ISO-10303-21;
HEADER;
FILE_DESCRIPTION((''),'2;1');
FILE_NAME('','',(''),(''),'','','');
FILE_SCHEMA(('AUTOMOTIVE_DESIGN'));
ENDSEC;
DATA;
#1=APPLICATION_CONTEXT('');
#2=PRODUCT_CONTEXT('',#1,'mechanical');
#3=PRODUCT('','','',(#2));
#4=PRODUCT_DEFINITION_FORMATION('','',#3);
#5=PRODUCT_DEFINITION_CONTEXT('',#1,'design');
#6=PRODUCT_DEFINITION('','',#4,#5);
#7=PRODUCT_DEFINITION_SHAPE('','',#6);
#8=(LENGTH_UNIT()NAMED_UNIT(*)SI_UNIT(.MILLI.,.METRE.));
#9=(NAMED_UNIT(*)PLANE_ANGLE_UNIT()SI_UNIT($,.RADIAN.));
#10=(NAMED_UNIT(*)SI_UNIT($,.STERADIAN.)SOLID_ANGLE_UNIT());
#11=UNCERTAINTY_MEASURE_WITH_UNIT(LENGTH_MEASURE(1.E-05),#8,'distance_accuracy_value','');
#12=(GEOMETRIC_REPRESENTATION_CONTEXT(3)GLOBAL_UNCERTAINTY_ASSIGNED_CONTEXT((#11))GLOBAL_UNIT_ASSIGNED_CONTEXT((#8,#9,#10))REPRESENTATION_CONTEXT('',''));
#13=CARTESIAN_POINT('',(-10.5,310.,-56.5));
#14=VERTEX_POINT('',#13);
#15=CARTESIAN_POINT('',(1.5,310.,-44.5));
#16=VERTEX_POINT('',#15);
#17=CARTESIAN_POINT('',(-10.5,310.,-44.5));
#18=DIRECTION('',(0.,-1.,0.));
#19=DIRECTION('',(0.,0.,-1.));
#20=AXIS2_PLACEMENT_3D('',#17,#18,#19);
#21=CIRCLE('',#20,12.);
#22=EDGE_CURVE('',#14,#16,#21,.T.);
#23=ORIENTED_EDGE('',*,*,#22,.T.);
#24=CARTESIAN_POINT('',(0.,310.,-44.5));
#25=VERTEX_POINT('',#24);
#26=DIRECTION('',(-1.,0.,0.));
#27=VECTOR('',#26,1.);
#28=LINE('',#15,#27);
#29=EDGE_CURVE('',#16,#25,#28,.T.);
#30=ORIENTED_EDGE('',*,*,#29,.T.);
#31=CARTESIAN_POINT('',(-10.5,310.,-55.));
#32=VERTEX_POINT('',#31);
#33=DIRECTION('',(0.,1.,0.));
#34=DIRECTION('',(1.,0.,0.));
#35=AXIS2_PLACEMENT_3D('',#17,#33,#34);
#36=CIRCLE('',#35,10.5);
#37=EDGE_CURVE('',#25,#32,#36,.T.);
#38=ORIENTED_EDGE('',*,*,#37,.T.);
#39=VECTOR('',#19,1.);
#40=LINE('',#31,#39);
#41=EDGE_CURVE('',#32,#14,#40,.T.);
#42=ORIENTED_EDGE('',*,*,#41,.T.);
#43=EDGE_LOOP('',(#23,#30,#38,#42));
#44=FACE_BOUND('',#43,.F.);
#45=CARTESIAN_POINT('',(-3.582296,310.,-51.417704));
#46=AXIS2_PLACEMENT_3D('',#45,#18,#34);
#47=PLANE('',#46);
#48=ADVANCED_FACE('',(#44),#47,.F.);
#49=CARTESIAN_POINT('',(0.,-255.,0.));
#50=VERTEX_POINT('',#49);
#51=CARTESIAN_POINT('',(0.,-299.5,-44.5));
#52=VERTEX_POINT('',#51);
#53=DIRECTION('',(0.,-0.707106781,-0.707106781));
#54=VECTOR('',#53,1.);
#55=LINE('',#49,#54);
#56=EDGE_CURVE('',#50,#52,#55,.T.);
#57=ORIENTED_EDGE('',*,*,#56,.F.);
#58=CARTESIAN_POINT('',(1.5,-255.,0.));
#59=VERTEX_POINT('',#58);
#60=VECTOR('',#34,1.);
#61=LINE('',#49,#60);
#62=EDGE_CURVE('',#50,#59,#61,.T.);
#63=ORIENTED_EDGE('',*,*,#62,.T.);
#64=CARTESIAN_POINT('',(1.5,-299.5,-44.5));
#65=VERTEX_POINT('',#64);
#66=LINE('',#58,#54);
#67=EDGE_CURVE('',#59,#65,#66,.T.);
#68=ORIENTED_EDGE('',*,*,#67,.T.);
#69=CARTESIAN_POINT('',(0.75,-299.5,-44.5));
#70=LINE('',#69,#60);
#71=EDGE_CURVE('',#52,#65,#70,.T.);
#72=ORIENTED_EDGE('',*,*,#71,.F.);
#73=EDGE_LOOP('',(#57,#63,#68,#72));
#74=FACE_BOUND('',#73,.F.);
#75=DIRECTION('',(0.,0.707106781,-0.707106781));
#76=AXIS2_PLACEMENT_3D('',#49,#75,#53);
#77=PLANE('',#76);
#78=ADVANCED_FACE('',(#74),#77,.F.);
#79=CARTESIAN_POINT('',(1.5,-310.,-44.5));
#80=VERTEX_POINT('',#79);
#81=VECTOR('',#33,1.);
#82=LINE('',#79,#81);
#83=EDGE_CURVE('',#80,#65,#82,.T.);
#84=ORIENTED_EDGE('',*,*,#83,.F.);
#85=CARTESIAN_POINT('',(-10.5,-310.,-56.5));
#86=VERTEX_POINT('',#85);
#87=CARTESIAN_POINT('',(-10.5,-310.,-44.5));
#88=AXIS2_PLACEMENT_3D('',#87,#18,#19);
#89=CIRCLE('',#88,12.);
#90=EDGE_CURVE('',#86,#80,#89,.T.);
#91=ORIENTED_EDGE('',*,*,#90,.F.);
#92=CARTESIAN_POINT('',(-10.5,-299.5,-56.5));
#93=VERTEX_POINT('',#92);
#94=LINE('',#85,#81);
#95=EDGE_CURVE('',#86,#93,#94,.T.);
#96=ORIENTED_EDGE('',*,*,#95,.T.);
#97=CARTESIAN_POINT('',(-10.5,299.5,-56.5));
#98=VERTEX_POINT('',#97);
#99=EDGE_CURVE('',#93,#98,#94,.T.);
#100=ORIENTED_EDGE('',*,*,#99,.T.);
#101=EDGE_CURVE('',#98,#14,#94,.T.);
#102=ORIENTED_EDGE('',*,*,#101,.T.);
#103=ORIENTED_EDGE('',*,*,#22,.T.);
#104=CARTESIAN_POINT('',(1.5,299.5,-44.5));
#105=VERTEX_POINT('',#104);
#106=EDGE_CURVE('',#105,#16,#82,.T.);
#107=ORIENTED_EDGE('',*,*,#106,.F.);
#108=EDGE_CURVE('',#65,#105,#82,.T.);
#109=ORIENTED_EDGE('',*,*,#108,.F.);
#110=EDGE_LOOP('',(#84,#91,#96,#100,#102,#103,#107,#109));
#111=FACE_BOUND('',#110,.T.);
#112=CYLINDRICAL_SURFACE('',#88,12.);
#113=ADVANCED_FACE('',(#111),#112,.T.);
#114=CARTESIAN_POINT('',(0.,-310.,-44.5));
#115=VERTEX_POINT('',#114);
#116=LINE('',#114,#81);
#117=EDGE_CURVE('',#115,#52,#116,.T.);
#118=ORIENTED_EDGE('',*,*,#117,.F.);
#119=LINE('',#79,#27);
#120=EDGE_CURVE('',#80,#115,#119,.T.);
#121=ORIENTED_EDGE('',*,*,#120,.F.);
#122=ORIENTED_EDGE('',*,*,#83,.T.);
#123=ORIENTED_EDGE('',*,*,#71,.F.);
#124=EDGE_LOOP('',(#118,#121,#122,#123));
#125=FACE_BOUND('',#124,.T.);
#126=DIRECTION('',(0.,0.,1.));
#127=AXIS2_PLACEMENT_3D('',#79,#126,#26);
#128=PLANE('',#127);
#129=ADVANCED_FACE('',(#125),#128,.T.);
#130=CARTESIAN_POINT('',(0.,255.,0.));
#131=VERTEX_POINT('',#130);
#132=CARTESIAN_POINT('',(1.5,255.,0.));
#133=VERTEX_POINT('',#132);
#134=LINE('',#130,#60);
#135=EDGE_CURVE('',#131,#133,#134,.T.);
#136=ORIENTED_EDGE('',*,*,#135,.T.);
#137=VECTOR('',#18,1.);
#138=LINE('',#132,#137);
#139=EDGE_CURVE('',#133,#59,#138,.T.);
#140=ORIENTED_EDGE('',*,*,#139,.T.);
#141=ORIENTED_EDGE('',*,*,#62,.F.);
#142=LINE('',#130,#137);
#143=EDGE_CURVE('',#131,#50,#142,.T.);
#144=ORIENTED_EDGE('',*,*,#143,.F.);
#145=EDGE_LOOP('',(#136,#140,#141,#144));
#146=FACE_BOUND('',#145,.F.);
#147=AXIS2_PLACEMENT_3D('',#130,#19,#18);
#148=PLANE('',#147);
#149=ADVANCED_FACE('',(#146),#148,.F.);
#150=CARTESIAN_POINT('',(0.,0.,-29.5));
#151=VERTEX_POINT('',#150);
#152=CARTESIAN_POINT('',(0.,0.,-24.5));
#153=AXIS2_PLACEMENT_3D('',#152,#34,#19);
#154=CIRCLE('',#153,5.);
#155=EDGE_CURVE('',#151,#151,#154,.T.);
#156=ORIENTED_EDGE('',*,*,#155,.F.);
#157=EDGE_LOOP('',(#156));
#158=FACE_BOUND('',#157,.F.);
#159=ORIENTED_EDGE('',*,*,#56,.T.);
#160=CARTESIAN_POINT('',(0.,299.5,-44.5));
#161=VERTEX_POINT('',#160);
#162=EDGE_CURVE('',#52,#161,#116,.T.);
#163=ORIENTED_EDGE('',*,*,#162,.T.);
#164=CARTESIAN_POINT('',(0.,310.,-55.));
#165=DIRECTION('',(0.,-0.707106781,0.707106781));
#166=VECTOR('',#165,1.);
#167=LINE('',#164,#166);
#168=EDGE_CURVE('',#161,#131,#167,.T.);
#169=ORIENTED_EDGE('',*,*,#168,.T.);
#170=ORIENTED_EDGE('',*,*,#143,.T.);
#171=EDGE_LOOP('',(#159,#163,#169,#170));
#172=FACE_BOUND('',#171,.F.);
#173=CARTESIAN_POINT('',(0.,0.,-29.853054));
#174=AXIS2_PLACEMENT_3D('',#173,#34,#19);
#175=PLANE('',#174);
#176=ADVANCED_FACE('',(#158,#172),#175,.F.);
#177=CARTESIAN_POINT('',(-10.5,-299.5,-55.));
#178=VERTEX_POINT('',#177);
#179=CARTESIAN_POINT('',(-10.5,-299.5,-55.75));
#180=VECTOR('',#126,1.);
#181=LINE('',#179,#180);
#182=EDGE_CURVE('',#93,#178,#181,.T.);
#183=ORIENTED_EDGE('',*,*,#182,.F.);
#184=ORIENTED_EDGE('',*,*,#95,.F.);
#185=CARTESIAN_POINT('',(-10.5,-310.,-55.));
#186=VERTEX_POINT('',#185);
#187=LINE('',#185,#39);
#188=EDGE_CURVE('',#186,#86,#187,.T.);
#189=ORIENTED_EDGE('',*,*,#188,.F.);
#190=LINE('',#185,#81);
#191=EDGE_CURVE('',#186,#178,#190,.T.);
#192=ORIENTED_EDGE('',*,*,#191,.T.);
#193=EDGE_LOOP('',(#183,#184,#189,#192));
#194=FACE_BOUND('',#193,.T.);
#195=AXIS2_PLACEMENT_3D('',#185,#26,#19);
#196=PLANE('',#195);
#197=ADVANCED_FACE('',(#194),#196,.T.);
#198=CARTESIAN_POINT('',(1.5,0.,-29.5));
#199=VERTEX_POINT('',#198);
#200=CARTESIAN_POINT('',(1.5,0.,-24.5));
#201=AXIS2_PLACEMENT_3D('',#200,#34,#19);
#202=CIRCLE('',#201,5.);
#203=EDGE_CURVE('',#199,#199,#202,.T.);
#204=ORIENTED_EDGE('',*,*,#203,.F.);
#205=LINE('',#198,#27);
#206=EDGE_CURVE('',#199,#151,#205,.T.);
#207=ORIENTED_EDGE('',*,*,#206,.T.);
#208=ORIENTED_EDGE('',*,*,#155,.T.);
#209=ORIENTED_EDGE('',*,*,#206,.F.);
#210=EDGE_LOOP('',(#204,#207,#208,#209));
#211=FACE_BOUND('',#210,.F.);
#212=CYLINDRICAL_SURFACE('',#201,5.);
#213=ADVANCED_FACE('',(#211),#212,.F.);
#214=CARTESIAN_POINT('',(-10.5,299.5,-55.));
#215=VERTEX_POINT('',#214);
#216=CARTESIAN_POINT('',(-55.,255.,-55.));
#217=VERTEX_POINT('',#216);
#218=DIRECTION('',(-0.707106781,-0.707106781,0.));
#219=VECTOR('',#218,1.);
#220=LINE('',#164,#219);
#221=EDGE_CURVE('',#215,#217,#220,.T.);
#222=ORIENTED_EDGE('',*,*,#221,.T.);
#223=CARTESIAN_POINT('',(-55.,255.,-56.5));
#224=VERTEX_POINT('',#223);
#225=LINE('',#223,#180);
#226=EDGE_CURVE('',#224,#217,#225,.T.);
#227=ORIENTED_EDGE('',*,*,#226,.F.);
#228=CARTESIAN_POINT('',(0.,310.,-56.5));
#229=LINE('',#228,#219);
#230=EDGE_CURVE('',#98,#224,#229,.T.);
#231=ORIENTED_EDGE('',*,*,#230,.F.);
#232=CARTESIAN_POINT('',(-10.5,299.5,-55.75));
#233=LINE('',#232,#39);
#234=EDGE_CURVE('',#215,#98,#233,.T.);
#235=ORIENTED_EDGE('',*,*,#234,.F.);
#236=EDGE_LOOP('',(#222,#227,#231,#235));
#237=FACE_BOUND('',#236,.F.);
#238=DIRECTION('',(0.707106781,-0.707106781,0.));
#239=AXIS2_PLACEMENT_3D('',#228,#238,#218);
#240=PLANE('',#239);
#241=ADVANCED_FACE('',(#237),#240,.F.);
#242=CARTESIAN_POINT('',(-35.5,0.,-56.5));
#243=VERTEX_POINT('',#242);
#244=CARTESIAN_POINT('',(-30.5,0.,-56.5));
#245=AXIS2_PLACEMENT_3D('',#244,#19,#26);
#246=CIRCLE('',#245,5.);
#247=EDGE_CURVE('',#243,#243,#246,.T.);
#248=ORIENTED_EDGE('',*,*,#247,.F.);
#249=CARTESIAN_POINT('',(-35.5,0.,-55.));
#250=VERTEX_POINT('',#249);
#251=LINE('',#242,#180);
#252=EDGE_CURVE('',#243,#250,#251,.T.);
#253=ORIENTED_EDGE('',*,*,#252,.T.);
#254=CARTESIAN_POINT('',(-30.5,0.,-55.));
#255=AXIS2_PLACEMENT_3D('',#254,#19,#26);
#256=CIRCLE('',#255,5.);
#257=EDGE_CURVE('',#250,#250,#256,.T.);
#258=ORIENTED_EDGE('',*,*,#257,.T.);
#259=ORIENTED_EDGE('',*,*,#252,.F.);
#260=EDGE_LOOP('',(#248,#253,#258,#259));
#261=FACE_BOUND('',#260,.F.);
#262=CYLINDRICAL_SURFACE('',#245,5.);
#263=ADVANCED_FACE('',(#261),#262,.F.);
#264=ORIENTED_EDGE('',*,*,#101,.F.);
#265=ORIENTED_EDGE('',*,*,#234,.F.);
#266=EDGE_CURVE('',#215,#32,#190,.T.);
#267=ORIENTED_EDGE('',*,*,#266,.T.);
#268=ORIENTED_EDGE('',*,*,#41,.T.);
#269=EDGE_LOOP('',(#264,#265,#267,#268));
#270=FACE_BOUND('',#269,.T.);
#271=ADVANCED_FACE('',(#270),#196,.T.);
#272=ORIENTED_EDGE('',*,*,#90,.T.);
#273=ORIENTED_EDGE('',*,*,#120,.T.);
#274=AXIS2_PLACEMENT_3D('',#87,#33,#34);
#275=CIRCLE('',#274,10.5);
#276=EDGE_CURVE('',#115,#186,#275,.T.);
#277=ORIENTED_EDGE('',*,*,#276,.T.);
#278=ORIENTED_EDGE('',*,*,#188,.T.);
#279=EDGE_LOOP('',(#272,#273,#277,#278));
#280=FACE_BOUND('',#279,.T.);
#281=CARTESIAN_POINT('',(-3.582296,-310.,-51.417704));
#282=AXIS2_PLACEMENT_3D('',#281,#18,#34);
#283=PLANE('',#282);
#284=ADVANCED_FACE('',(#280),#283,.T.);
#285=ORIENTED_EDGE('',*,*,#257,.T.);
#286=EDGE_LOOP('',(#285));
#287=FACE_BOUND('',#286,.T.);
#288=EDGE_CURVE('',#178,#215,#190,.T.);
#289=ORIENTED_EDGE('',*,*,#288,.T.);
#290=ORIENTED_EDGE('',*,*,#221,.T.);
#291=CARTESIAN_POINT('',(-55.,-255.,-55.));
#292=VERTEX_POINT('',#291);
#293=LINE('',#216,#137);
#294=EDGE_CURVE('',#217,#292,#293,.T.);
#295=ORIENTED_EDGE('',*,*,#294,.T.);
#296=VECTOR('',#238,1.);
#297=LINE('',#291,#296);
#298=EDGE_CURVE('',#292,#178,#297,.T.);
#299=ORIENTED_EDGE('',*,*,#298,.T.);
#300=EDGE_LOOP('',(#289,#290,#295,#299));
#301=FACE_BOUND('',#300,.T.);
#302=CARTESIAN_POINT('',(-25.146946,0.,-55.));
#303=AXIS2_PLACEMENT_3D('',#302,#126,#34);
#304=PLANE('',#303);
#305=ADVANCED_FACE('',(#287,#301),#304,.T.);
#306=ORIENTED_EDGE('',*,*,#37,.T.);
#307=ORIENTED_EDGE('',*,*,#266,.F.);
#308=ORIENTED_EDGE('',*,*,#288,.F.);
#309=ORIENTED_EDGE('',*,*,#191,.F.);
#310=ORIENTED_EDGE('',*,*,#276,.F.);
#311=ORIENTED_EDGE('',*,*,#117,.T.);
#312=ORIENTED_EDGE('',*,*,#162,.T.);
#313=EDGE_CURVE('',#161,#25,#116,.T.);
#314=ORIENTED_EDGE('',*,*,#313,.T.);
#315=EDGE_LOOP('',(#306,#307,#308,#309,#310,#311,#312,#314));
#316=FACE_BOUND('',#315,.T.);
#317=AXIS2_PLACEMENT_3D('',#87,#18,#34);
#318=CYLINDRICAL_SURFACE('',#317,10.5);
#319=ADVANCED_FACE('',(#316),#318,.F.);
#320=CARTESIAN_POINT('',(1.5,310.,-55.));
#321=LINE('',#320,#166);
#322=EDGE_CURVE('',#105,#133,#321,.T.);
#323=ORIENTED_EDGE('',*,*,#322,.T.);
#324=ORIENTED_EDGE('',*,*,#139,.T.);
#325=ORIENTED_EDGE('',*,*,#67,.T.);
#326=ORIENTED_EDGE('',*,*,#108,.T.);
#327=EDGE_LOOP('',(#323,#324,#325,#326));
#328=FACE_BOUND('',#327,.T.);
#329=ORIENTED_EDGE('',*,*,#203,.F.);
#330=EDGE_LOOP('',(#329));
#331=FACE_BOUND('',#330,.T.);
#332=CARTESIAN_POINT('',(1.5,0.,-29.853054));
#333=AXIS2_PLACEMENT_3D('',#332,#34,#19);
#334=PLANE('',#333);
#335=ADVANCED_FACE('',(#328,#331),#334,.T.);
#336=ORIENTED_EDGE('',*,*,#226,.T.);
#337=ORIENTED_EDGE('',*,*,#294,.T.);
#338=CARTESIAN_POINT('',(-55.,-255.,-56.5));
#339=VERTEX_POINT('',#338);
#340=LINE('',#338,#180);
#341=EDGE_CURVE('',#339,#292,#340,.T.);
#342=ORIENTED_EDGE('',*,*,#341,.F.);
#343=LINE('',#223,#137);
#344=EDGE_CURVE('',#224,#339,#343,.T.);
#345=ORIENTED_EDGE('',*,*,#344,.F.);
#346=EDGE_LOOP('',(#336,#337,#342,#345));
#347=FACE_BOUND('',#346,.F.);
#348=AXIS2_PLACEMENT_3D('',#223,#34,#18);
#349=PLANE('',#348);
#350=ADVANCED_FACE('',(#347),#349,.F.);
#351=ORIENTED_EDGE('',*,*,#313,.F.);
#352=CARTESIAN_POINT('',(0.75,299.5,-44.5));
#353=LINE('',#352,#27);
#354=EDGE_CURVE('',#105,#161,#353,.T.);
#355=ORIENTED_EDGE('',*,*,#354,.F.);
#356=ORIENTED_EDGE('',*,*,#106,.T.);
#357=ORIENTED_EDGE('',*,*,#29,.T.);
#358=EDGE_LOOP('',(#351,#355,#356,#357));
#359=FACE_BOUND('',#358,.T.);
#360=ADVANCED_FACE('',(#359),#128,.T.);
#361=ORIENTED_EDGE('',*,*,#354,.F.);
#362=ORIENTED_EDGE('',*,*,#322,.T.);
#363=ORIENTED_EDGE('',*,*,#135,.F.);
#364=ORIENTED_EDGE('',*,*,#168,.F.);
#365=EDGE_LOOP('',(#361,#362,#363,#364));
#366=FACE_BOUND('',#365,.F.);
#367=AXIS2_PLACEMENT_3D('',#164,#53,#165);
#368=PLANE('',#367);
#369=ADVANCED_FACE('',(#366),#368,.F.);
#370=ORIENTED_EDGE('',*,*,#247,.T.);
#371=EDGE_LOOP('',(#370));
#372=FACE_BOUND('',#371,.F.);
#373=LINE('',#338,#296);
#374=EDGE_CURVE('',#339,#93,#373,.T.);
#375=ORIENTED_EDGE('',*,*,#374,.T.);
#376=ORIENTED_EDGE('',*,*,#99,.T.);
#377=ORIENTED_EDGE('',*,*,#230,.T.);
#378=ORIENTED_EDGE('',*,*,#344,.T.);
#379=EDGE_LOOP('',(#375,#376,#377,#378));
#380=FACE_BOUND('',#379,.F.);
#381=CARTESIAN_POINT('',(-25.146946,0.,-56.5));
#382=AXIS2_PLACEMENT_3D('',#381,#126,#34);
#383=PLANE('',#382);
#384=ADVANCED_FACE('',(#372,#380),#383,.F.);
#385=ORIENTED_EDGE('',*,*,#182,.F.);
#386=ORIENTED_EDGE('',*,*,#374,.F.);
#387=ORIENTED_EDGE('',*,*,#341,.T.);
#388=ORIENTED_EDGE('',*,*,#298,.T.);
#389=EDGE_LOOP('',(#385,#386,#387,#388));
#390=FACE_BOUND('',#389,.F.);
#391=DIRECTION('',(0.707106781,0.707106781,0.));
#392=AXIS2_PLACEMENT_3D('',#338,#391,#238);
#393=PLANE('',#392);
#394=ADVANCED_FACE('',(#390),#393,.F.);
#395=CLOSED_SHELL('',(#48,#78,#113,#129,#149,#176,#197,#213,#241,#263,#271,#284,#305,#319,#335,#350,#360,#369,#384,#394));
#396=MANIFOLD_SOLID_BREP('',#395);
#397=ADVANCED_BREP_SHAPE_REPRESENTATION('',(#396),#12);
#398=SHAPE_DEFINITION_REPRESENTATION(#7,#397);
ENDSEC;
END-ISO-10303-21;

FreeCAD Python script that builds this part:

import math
import FreeCAD as App
import Part
import Sketcher

V = App.Vector


def add_polygon(sketch, points):
    """Adds a closed chain of lines whose ends are joined by coincident constraints."""
    first, n = sketch.GeometryCount, len(points)
    for a, b in zip(points, points[1:] + points[:1]):
        sketch.addGeometry(Part.LineSegment(App.Vector(*a, 0), App.Vector(*b, 0)), False)
    for i in range(n):
        sketch.addConstraint(Sketcher.Constraint("Coincident", first + i, 2, first + (i + 1) % n, 1))

doc = App.newDocument("Part")
body = doc.addObject("PartDesign::Body", "Body")
body.AllowCompound = True

sketch1 = body.newObject("Sketcher::SketchObject", "Sketch")
sketch1.AttachmentSupport = (doc.getObject("YZ_Plane"), [""])
sketch1.MapMode = "FlatFace"
add_polygon(sketch1, [(255, 0), (-255, 0), (-310, -55), (-310, -56.5), (310, -56.5), (310, -55)])
sketch1.addConstraint(Sketcher.Constraint("Horizontal", 0))
sketch1.addConstraint(Sketcher.Constraint("Vertical", 2))
sketch1.addConstraint(Sketcher.Constraint("Horizontal", 3))
sketch1.addConstraint(Sketcher.Constraint("Vertical", 4))
sketch1.addConstraint(Sketcher.Constraint("Symmetric", 0, 2, 5, 2, -1, 1))
sketch1.addConstraint(Sketcher.Constraint("Symmetric", 1, 2, 4, 2, -2))
sketch1.addConstraint(Sketcher.Constraint("Perpendicular", 1, 5))
sketch1.addConstraint(Sketcher.Constraint("DistanceX", 0, 2, 0, 1, 510.0))
sketch1.addConstraint(Sketcher.Constraint("DistanceX", 3, 1, 3, 2, 620.0))
sketch1.addConstraint(Sketcher.Constraint("DistanceY", 2, 2, 2, 1, 1.5))
pad1 = body.newObject("PartDesign::Pad", "Pad")
pad1.Profile = sketch1
pad1.Length = 1.5

sketch2 = body.newObject("Sketcher::SketchObject", "Sketch001")
sketch2.AttachmentSupport = (doc.getObject("XY_Plane"), [""])
sketch2.MapMode = "FlatFace"
sketch2.AttachmentOffset = App.Placement(V(0, 0, -56.5), App.Rotation())
add_polygon(sketch2, [(-55, -255), (-55, 255), (0, 310), (0, -310)])
sketch2.addConstraint(Sketcher.Constraint("Vertical", 0))
sketch2.addConstraint(Sketcher.Constraint("Vertical", 2))
sketch2.addConstraint(Sketcher.Constraint("Symmetric", 1, 2, 2, 2, -1, 1))
sketch2.addConstraint(Sketcher.Constraint("Perpendicular", 1, 3))
sketch2.addConstraint(Sketcher.Constraint("Equal", 1, 3))
sketch2.addConstraint(Sketcher.Constraint("DistanceY", 0, 1, 0, 2, 510.0))
sketch2.addConstraint(Sketcher.Constraint("DistanceY", 2, 2, 2, 1, 620.0))
pad2 = body.newObject("PartDesign::Pad", "Pad001")
pad2.Profile = sketch2
pad2.Length = 1.5

sketch3 = body.newObject("Sketcher::SketchObject", "Sketch002")
sketch3.AttachmentSupport = (doc.getObject("XZ_Plane"), [""])
sketch3.MapMode = "FlatFace"
sketch3.AttachmentOffset = App.Placement(V(0, 0, 310), App.Rotation())
sketch3.addGeometry(Part.ArcOfCircle(Part.Circle(V(-11, -44, 0), V(0, 0, 1), 12), math.radians(-90), math.radians(0)), False)
sketch3.addGeometry(Part.LineSegment(V(-10, -56, 0), V(2, -56, 0)), False)
sketch3.addGeometry(Part.LineSegment(V(2, -56, 0), V(2, -44, 0)), False)
sketch3.addConstraint(Sketcher.Constraint("Tangent", 0, 1, 1, 1))
sketch3.addConstraint(Sketcher.Constraint("Coincident", 1, 2, 2, 1))
sketch3.addConstraint(Sketcher.Constraint("Tangent", 2, 2, 0, 2))
sketch3.addConstraint(Sketcher.Constraint("Horizontal", 1))
sketch3.addConstraint(Sketcher.Constraint("Vertical", 2))
sketch3.addConstraint(Sketcher.Constraint("Radius", 0, 12.0))
sketch3.addConstraint(Sketcher.Constraint("DistanceX", 0, 3, -1, 1, 10.5))
sketch3.addConstraint(Sketcher.Constraint("DistanceY", 0, 3, -1, 1, 44.5))
pocket1 = body.newObject("PartDesign::Pocket", "Pocket")
pocket1.Profile = sketch3
pocket1.Type = "ThroughAll"
pocket1.Midplane = True

sketch4 = body.newObject("Sketcher::SketchObject", "Sketch003")
sketch4.AttachmentSupport = (doc.getObject("XZ_Plane"), [""])
sketch4.MapMode = "FlatFace"
sketch4.AttachmentOffset = App.Placement(V(0, 0, 310), App.Rotation())
sketch4.addGeometry(Part.LineSegment(V(-10.5, -55, 0), V(-10.5, -56.5, 0)), False)
sketch4.addGeometry(Part.ArcOfCircle(Part.Circle(V(-10.5, -44.5, 0), V(0, 0, 1), 12), math.radians(-90), math.radians(0)), False)
sketch4.addGeometry(Part.LineSegment(V(1.5, -44.5, 0), V(0, -44.5, 0)), False)
sketch4.addGeometry(Part.ArcOfCircle(Part.Circle(V(-10.5, -44.5, 0), V(0, 0, 1), 10.5), math.radians(-90), math.radians(0)), False)
sketch4.addConstraint(Sketcher.Constraint("Coincident", 0, 2, 1, 1))
sketch4.addConstraint(Sketcher.Constraint("Coincident", 1, 2, 2, 1))
sketch4.addConstraint(Sketcher.Constraint("Coincident", 2, 2, 3, 2))
sketch4.addConstraint(Sketcher.Constraint("Coincident", 3, 1, 0, 1))
sketch4.addConstraint(Sketcher.Constraint("Vertical", 0))
sketch4.addConstraint(Sketcher.Constraint("Horizontal", 2))
sketch4.addConstraint(Sketcher.Constraint("Coincident", 3, 3, 1, 3))
sketch4.addConstraint(Sketcher.Constraint("PointOnObject", 2, 2, -2))
sketch4.addConstraint(Sketcher.Constraint("Horizontal", 3, 3, 1, 2))
sketch4.addConstraint(Sketcher.Constraint("Vertical", 3, 3, 0, 2))
sketch4.addConstraint(Sketcher.Constraint("Radius", 1, 12.0))
sketch4.addConstraint(Sketcher.Constraint("Radius", 3, 10.5))
sketch4.addConstraint(Sketcher.Constraint("DistanceY", 3, 1, -1, 1, 55.0))
pad3 = body.newObject("PartDesign::Pad", "Pad002")
pad3.Profile = sketch4
pad3.Length = 620
pad3.Reversed = True

sketch5 = body.newObject("Sketcher::SketchObject", "Sketch004")
sketch5.AttachmentSupport = (doc.getObject("YZ_Plane"), [""])
sketch5.MapMode = "FlatFace"
sketch5.AttachmentOffset = App.Placement(V(0, 0, 1.5), App.Rotation())
sketch5.addGeometry(Part.Circle(V(0, -24, 0), V(0, 0, 1), 5), False)
sketch5.addConstraint(Sketcher.Constraint("PointOnObject", 0, 3, -2))
sketch5.addConstraint(Sketcher.Constraint("Diameter", 0, 10.0))
sketch5.addConstraint(Sketcher.Constraint("DistanceY", 0, 3, -1, 1, 24.5))
pocket2 = body.newObject("PartDesign::Pocket", "Pocket001")
pocket2.Profile = sketch5
pocket2.Type = "ThroughAll"
pocket2.Midplane = True

sketch6 = body.newObject("Sketcher::SketchObject", "Sketch005")
sketch6.AttachmentSupport = (doc.getObject("XY_Plane"), [""])
sketch6.MapMode = "FlatFace"
sketch6.AttachmentOffset = App.Placement(V(0, 0, -56.5), App.Rotation())
sketch6.addGeometry(Part.Circle(V(-30, 0, 0), V(0, 0, 1), 5), False)
sketch6.addConstraint(Sketcher.Constraint("PointOnObject", 0, 3, -1))
sketch6.addConstraint(Sketcher.Constraint("Diameter", 0, 10.0))
sketch6.addConstraint(Sketcher.Constraint("DistanceX", 0, 3, -1, 1, 30.5))
pocket3 = body.newObject("PartDesign::Pocket", "Pocket002")
pocket3.Profile = sketch6
pocket3.Type = "ThroughAll"
pocket3.Midplane = True

doc.recompute()
